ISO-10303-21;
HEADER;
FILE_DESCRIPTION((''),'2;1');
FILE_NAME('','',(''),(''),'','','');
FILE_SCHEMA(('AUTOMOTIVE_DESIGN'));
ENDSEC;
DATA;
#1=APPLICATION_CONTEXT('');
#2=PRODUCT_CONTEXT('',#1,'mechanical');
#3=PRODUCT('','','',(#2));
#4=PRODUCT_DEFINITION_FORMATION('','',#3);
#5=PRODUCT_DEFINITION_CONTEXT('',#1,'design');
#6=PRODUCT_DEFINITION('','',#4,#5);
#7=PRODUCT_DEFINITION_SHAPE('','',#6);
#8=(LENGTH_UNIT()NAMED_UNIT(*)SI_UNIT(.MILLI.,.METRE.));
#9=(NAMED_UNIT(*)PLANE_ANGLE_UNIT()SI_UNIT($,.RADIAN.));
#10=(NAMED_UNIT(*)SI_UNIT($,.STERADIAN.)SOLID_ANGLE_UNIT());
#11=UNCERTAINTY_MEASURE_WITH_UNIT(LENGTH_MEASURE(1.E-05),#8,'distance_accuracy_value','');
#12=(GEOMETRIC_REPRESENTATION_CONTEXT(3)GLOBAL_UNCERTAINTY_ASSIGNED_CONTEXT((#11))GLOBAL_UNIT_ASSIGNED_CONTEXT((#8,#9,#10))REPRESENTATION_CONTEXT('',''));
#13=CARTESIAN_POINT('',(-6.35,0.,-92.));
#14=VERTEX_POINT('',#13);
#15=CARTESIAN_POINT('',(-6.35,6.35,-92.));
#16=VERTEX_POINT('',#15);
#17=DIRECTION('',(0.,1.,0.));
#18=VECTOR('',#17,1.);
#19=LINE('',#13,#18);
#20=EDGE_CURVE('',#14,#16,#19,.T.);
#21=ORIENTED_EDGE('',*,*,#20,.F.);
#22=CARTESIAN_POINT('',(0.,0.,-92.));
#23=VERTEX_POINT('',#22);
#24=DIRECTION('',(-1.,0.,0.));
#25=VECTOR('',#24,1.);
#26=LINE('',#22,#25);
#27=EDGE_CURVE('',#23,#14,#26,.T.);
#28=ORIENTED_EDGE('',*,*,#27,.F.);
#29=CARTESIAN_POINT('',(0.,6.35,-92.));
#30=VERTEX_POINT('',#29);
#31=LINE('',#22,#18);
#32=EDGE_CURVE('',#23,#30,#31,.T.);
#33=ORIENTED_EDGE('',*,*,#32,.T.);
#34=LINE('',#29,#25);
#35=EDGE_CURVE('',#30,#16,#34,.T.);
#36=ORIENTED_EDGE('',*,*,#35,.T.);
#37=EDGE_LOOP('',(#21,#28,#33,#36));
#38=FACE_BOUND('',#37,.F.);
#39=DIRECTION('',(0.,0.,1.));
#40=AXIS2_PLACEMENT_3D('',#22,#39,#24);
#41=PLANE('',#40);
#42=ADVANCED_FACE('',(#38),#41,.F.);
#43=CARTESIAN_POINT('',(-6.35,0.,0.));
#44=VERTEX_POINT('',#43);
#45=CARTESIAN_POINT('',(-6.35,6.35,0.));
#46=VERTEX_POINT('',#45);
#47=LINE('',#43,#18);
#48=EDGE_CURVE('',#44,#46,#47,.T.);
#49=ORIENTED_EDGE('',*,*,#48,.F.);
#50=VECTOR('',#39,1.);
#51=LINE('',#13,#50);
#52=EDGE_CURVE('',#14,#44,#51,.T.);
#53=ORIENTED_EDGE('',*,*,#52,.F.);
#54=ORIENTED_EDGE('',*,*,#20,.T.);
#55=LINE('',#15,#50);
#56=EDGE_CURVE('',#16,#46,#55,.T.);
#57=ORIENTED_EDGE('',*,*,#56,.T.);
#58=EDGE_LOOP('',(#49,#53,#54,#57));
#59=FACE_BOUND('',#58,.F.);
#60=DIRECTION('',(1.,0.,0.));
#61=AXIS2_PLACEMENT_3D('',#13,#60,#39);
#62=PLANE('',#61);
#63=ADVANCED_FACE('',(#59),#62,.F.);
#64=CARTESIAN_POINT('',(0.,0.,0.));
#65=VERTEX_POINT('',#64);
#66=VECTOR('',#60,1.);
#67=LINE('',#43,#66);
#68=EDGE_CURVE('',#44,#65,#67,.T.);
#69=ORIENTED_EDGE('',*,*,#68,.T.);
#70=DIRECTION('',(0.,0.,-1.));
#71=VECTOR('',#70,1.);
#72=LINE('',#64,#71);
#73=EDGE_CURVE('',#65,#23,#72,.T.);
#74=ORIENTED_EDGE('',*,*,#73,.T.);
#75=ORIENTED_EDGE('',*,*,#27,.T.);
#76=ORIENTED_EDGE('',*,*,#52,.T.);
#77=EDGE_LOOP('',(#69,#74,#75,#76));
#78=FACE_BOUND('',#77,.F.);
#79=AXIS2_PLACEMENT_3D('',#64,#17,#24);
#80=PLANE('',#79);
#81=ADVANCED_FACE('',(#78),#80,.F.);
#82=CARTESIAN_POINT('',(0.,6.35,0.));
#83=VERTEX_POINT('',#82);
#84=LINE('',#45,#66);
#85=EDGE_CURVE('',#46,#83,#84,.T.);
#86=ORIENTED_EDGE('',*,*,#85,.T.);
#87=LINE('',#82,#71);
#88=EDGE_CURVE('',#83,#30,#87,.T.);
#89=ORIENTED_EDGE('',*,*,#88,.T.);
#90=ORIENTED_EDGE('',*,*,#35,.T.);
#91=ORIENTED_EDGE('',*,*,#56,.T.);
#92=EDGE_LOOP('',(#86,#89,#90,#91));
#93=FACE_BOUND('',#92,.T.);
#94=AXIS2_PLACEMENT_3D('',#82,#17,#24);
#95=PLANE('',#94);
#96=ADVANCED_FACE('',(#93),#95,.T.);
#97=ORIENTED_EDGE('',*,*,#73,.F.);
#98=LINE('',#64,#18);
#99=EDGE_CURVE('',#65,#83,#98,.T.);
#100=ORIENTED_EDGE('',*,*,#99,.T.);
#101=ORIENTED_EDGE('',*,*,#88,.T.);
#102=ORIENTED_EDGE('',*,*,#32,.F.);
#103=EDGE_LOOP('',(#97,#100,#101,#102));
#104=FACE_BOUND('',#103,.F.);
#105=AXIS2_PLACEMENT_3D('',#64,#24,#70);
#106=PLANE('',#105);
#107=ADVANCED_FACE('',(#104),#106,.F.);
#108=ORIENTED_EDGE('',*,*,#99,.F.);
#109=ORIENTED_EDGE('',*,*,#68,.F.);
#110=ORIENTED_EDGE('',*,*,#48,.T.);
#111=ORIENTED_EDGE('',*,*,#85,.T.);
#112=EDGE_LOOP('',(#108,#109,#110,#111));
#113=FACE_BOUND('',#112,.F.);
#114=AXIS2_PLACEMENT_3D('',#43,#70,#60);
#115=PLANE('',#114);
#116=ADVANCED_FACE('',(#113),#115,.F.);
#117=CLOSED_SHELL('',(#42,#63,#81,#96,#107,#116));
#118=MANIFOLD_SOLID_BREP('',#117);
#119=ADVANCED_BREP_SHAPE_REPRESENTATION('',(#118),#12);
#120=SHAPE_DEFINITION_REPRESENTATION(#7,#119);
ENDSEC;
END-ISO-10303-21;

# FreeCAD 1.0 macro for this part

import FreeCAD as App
import Part
import Sketcher

V = App.Vector
Q = App.Units.Quantity


def add_polygon(sketch, points):
    """Adds a closed chain of lines whose ends are joined by coincident constraints."""
    first, n = sketch.GeometryCount, len(points)
    for a, b in zip(points, points[1:] + points[:1]):
        sketch.addGeometry(Part.LineSegment(App.Vector(*a, 0), App.Vector(*b, 0)), False)
    for i in range(n):
        sketch.addConstraint(Sketcher.Constraint("Coincident", first + i, 2, first + (i + 1) % n, 1))

doc = App.newDocument("Part")
params = doc.addObject("Spreadsheet::Sheet", "Params")
for row, (alias, value) in enumerate([
    ("sketch1_height", "92 mm"),
    ("sketch1_width", "6.35 mm"),
    ("pad1_length", "6.35 mm"),
], start=1):
    params.set(f"A{row}", alias)
    params.set(f"B{row}", "=" + value)
    params.setAlias(f"B{row}", alias)

body = doc.addObject("PartDesign::Body", "Body")

# Sketch on XZ plane
sketch1 = body.newObject("Sketcher::SketchObject", "Sketch")
sketch1.AttachmentSupport = (doc.getObject("XZ_Plane"), [""])
sketch1.MapMode = "FlatFace"
add_polygon(sketch1, [(-6, 0), (0, 0), (0, -92), (-6, -92)])  # lines 0-3
sketch1.addConstraint([
    Sketcher.Constraint("Horizontal", 0),
    Sketcher.Constraint("Vertical", 1),
    Sketcher.Constraint("Horizontal", 2),
    Sketcher.Constraint("Vertical", 3),
    Sketcher.Constraint("Coincident", 0, 2, -1, 1),
    Sketcher.Constraint("DistanceY", 1, 2, 1, 1, Q("92 mm")),
    Sketcher.Constraint("DistanceX", 0, 1, 0, 2, Q("6.35 mm")),
])
sketch1.setExpression("Constraints[9]", "Params.sketch1_height")
sketch1.setExpression("Constraints[10]", "Params.sketch1_width")
pad1 = body.newObject("PartDesign::Pad", "Pad")
pad1.Profile = sketch1
pad1.setExpression("Length", "Params.pad1_length")
pad1.Reversed = True

doc.recompute()
